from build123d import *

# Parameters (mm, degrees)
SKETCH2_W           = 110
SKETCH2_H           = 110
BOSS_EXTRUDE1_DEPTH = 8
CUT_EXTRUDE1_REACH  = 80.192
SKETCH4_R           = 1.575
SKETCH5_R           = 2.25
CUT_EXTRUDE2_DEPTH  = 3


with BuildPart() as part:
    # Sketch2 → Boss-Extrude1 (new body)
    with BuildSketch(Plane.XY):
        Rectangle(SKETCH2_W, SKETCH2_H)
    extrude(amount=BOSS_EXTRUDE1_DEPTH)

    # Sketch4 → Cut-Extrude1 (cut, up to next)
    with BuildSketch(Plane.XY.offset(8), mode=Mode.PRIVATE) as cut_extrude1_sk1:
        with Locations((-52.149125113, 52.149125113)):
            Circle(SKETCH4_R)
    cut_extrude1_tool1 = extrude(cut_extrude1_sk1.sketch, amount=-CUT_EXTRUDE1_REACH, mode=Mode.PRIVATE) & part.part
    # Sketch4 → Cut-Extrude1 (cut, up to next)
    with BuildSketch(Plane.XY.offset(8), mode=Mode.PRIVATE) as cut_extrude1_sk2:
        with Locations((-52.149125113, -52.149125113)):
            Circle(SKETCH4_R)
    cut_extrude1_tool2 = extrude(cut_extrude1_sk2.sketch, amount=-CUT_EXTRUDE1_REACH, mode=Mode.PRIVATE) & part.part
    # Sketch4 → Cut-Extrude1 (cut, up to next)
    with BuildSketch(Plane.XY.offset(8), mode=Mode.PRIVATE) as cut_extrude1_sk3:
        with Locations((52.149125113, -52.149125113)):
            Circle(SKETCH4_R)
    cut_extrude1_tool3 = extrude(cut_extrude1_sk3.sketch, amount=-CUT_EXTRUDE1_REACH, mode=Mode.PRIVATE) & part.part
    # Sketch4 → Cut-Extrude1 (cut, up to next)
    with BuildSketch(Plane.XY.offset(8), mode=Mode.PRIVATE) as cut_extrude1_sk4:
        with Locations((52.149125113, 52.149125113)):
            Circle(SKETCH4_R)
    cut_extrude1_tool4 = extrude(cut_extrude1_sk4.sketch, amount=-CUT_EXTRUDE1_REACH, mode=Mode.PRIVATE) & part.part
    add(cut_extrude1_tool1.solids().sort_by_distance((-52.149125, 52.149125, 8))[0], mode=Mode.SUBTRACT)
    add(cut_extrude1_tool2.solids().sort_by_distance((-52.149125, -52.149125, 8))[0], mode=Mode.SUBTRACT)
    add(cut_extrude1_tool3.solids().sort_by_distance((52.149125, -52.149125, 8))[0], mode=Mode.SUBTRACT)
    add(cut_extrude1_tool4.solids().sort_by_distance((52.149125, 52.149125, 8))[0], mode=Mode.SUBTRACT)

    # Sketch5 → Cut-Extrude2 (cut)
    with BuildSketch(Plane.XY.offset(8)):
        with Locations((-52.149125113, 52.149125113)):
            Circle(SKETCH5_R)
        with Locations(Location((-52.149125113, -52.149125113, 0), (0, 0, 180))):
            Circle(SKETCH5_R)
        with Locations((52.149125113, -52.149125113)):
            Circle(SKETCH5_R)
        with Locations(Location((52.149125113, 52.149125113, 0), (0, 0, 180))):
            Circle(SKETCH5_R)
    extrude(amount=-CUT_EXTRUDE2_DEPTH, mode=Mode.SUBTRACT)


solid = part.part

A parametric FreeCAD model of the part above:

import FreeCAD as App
import Part
import Sketcher
Q = App.Units.Quantity

doc = App.newDocument("Part")
body = doc.addObject("PartDesign::Body", "Body")

sketch1 = body.newObject("Sketcher::SketchObject", "Sketch")
sketch1.AttachmentSupport = (doc.getObject("XY_Plane"), [""])
sketch1.MapMode = "FlatFace"
sketch1.addGeometry([
    Part.LineSegment(App.Vector(-55, 55, 0), App.Vector(-55, -55, 0)),
    Part.LineSegment(App.Vector(-55, -55, 0), App.Vector(55, -55, 0)),
    Part.LineSegment(App.Vector(55, -55, 0), App.Vector(55, 55, 0)),
    Part.LineSegment(App.Vector(55, 55, 0), App.Vector(-55, 55, 0)),
], False)
sketch1.addConstraint([
    Sketcher.Constraint("Coincident", 0, 2, 1, 1),
    Sketcher.Constraint("Coincident", 1, 2, 2, 1),
    Sketcher.Constraint("Coincident", 2, 2, 3, 1),
    Sketcher.Constraint("Coincident", 3, 2, 0, 1),
    Sketcher.Constraint("Vertical", 0),
    Sketcher.Constraint("Horizontal", 1),
    Sketcher.Constraint("Vertical", 2),
    Sketcher.Constraint("Horizontal", 3),
    Sketcher.Constraint("Symmetric", 0, 2, 2, 2, -1, 1),
    Sketcher.Constraint("Equal", 3, 0),
    Sketcher.Constraint("DistanceX", 1, 1, 1, 2, Q("110 mm")),
])
pad1 = body.newObject("PartDesign::Pad", "Pad")
pad1.Profile = sketch1
pad1.Length = 8

sketch2 = body.newObject("Sketcher::SketchObject", "Sketch001")
sketch2.AttachmentSupport = (doc.getObject("XY_Plane"), [""])
sketch2.MapMode = "FlatFace"
sketch2.AttachmentOffset = App.Placement(App.Vector(0, 0, 8), App.Rotation())
sketch2.addGeometry(Part.Circle(App.Vector(-52.149125, 52.149125, 0), App.Vector(0, 0, 1), 1.575), False)
sketch2.addConstraint([
    Sketcher.Constraint("Diameter", 0, Q("3.15 mm")),
    Sketcher.Constraint("DistanceX", 0, 3, -1, 1, Q("52.149125 mm")),
    Sketcher.Constraint("DistanceY", -1, 1, 0, 3, Q("52.149125 mm")),
])
pocket1 = body.newObject("PartDesign::Pocket", "Pocket")
pocket1.Profile = sketch2
pocket1.Type = "UpToFirst"

sketch3 = body.newObject("Sketcher::SketchObject", "Sketch002")
sketch3.AttachmentSupport = (doc.getObject("XY_Plane"), [""])
sketch3.MapMode = "FlatFace"
sketch3.AttachmentOffset = App.Placement(App.Vector(0, 0, 8), App.Rotation())
sketch3.addGeometry(Part.Circle(App.Vector(-52.149125, -52.149125, 0), App.Vector(0, 0, 1), 1.575), False)
sketch3.addConstraint([
    Sketcher.Constraint("Diameter", 0, Q("3.15 mm")),
    Sketcher.Constraint("DistanceX", 0, 3, -1, 1, Q("52.149125 mm")),
    Sketcher.Constraint("DistanceY", 0, 3, -1, 1, Q("52.149125 mm")),
])
pocket2 = body.newObject("PartDesign::Pocket", "Pocket001")
pocket2.Profile = sketch3
pocket2.Type = "UpToFirst"

sketch4 = body.newObject("Sketcher::SketchObject", "Sketch003")
sketch4.AttachmentSupport = (doc.getObject("XY_Plane"), [""])
sketch4.MapMode = "FlatFace"
sketch4.AttachmentOffset = App.Placement(App.Vector(0, 0, 8), App.Rotation())
sketch4.addGeometry(Part.Circle(App.Vector(52.149125, -52.149125, 0), App.Vector(0, 0, 1), 1.575), False)
sketch4.addConstraint([
    Sketcher.Constraint("Diameter", 0, Q("3.15 mm")),
    Sketcher.Constraint("DistanceX", -1, 1, 0, 3, Q("52.149125 mm")),
    Sketcher.Constraint("DistanceY", 0, 3, -1, 1, Q("52.149125 mm")),
])
pocket3 = body.newObject("PartDesign::Pocket", "Pocket002")
pocket3.Profile = sketch4
pocket3.Type = "UpToFirst"

sketch5 = body.newObject("Sketcher::SketchObject", "Sketch004")
sketch5.AttachmentSupport = (doc.getObject("XY_Plane"), [""])
sketch5.MapMode = "FlatFace"
sketch5.AttachmentOffset = App.Placement(App.Vector(0, 0, 8), App.Rotation())
sketch5.addGeometry(Part.Circle(App.Vector(52.149125, 52.149125, 0), App.Vector(0, 0, 1), 1.575), False)
sketch5.addConstraint([
    Sketcher.Constraint("Diameter", 0, Q("3.15 mm")),
    Sketcher.Constraint("DistanceX", -1, 1, 0, 3, Q("52.149125 mm")),
    Sketcher.Constraint("DistanceY", -1, 1, 0, 3, Q("52.149125 mm")),
])
pocket4 = body.newObject("PartDesign::Pocket", "Pocket003")
pocket4.Profile = sketch5
pocket4.Type = "UpToFirst"

sketch6 = body.newObject("Sketcher::SketchObject", "Sketch005")
sketch6.AttachmentSupport = (doc.getObject("XY_Plane"), [""])
sketch6.MapMode = "FlatFace"
sketch6.AttachmentOffset = App.Placement(App.Vector(0, 0, 8), App.Rotation())
sketch6.addGeometry([
    Part.Circle(App.Vector(-52.149125, 52.149125, 0), App.Vector(0, 0, 1), 2.25),
    Part.Circle(App.Vector(-52.149125, -52.149125, 0), App.Vector(0, 0, 1), 2.25),
    Part.Circle(App.Vector(52.149125, -52.149125, 0), App.Vector(0, 0, 1), 2.25),
    Part.Circle(App.Vector(52.149125, 52.149125, 0), App.Vector(0, 0, 1), 2.25),
], False)
sketch6.addConstraint([
    Sketcher.Constraint("Equal", 0, 1),
    Sketcher.Constraint("Equal", 1, 2),
    Sketcher.Constraint("Equal", 2, 3),
    Sketcher.Constraint("Symmetric", 0, 3, 2, 3, -1, 1),
    Sketcher.Constraint("Symmetric", 1, 3, 3, 3, -1, 1),
    Sketcher.Constraint("Symmetric", 1, 3, 2, 3, -2),
    Sketcher.Constraint("Diameter", 0, Q("4.5 mm")),
    Sketcher.Constraint("DistanceY", 1, 3, 0, 3, Q("104.29825 mm")),
    Sketcher.Constraint("DistanceX", 1, 3, 2, 3, Q("104.29825 mm")),
])
pocket5 = body.newObject("PartDesign::Pocket", "Pocket004")
pocket5.Profile = sketch6
pocket5.Length = 3

doc.recompute()
